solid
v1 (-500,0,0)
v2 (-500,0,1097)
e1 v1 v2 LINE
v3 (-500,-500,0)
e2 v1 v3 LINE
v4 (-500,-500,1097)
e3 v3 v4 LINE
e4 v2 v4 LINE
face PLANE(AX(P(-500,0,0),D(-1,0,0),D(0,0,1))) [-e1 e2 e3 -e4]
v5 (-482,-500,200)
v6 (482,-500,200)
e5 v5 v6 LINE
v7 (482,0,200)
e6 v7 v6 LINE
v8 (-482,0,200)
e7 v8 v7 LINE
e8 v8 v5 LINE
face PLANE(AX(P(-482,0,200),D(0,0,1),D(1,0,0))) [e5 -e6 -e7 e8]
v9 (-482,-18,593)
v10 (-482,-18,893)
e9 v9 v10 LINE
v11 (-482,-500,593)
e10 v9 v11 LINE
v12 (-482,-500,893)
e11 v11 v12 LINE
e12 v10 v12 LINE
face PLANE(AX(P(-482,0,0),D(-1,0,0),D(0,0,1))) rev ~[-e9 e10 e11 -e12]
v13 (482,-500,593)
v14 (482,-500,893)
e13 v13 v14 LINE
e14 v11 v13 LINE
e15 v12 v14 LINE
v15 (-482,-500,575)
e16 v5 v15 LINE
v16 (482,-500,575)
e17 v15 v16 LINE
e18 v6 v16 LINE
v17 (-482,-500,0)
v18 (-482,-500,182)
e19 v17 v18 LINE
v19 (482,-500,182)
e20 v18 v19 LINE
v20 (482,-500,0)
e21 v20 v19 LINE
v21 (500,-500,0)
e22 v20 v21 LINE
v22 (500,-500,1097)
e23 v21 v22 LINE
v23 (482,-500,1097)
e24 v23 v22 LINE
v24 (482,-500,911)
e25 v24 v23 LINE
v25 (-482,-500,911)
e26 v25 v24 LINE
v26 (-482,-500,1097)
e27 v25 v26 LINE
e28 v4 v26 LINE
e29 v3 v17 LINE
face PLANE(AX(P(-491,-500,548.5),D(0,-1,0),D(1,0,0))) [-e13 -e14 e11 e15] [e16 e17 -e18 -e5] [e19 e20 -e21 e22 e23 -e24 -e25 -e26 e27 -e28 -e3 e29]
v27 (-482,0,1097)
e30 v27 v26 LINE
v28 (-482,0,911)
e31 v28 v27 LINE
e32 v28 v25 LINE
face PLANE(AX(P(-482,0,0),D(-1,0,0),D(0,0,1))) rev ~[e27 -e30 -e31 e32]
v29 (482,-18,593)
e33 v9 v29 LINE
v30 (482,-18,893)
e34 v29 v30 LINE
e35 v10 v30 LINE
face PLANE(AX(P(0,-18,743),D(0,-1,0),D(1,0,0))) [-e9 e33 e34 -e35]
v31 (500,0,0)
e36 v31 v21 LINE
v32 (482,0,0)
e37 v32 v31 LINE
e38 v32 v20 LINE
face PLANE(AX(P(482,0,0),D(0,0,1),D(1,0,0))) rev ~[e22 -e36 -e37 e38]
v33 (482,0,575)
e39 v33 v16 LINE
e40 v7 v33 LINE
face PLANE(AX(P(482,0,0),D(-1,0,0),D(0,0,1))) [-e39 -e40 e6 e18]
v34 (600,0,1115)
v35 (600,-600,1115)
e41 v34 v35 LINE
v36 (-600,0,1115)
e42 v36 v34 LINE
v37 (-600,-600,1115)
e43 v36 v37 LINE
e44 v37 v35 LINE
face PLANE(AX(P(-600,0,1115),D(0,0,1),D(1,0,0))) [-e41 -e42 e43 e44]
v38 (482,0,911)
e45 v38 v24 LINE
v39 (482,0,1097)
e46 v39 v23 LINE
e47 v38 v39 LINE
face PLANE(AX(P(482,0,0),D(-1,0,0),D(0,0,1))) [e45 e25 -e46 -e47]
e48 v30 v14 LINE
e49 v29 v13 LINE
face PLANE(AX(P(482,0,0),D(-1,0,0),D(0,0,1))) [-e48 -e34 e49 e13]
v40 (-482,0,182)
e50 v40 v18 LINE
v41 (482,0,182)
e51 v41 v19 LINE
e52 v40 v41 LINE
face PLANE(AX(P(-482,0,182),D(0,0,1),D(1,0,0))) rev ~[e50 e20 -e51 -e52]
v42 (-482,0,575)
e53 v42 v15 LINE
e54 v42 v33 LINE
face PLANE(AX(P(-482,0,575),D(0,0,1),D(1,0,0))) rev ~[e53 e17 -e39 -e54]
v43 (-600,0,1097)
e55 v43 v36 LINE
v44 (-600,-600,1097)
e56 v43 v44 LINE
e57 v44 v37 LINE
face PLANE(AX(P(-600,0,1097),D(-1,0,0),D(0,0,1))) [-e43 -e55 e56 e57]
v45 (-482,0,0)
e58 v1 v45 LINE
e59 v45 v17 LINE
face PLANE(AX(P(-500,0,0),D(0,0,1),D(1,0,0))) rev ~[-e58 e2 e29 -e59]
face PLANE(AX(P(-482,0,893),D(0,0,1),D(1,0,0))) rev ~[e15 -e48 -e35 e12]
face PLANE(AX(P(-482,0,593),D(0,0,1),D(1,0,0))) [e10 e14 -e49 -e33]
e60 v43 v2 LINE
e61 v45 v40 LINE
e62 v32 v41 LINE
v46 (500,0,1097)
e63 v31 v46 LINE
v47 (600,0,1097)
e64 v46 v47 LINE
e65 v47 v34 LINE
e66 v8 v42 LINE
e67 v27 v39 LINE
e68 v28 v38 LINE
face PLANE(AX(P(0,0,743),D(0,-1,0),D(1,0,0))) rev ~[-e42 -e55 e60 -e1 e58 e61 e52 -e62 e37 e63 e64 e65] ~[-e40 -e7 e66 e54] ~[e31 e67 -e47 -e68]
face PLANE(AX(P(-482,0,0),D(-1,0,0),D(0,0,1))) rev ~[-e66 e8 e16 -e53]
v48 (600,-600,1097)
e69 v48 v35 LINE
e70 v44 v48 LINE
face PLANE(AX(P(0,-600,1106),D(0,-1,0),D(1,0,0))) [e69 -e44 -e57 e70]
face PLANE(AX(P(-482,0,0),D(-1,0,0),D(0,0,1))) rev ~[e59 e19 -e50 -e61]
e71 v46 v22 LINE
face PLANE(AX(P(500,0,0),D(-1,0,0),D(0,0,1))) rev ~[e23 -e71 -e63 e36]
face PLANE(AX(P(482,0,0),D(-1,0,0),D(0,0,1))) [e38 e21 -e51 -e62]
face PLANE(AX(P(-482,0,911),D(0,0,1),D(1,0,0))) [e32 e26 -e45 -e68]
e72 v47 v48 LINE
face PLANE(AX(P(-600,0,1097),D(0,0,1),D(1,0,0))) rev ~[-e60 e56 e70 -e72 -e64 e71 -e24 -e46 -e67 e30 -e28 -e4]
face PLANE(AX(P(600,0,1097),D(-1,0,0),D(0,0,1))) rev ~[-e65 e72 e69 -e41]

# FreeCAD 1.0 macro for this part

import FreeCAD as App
import Part
import Sketcher

V = App.Vector

doc = App.newDocument("Part")
body = doc.addObject("PartDesign::Body", "Body")

sketch1 = body.newObject("Sketcher::SketchObject", "Sketch")
sketch1.AttachmentSupport = (doc.getObject("XZ_Plane"), [""])
sketch1.MapMode = "FlatFace"
sketch1.addGeometry(Part.LineSegment(V(-600, 1115, 0), V(-600, 1097, 0)), False)
sketch1.addGeometry(Part.LineSegment(V(-600, 1097, 0), V(600, 1097, 0)), False)
sketch1.addGeometry(Part.LineSegment(V(600, 1097, 0), V(600, 1115, 0)), False)
sketch1.addGeometry(Part.LineSegment(V(600, 1115, 0), V(-600, 1115, 0)), False)
sketch1.addConstraint(Sketcher.Constraint("Coincident", 0, 2, 1, 1))
sketch1.addConstraint(Sketcher.Constraint("Coincident", 1, 2, 2, 1))
sketch1.addConstraint(Sketcher.Constraint("Coincident", 2, 2, 3, 1))
sketch1.addConstraint(Sketcher.Constraint("Coincident", 3, 2, 0, 1))
sketch1.addConstraint(Sketcher.Constraint("Vertical", 0))
sketch1.addConstraint(Sketcher.Constraint("Horizontal", 1))
sketch1.addConstraint(Sketcher.Constraint("Vertical", 2))
sketch1.addConstraint(Sketcher.Constraint("Horizontal", 3))
sketch1.addConstraint(Sketcher.Constraint("DistanceX", 1, 1, 1, 2, 1200.0))
sketch1.addConstraint(Sketcher.Constraint("DistanceY", 0, 2, 0, 1, 18.0))
sketch1.addConstraint(Sketcher.Constraint("DistanceX", 0, 2, -1, 1, 600.0))
sketch1.addConstraint(Sketcher.Constraint("DistanceY", -1, 1, 0, 2, 1097.0))
pad1 = body.newObject("PartDesign::Pad", "Pad")
pad1.Profile = sketch1
pad1.Length = 600

sketch2 = body.newObject("Sketcher::SketchObject", "Sketch001")
sketch2.AttachmentSupport = (doc.getObject("XZ_Plane"), [""])
sketch2.MapMode = "FlatFace"
sketch2.addGeometry(Part.LineSegment(V(-500, 1097, 0), V(-500, 0, 0)), False)
sketch2.addGeometry(Part.LineSegment(V(-500, 0, 0), V(-482, 0, 0)), False)
sketch2.addGeometry(Part.LineSegment(V(-482, 0, 0), V(-482, 1097, 0)), False)
sketch2.addGeometry(Part.LineSegment(V(-482, 1097, 0), V(-500, 1097, 0)), False)
sketch2.addGeometry(Part.LineSegment(V(482, 1097, 0), V(482, 0, 0)), False)
sketch2.addGeometry(Part.LineSegment(V(482, 0, 0), V(500, 0, 0)), False)
sketch2.addGeometry(Part.LineSegment(V(500, 0, 0), V(500, 1097, 0)), False)
sketch2.addGeometry(Part.LineSegment(V(500, 1097, 0), V(482, 1097, 0)), False)
sketch2.addConstraint(Sketcher.Constraint("Coincident", 0, 2, 1, 1))
sketch2.addConstraint(Sketcher.Constraint("Coincident", 1, 2, 2, 1))
sketch2.addConstraint(Sketcher.Constraint("Coincident", 2, 2, 3, 1))
sketch2.addConstraint(Sketcher.Constraint("Coincident", 3, 2, 0, 1))
sketch2.addConstraint(Sketcher.Constraint("Coincident", 4, 2, 5, 1))
sketch2.addConstraint(Sketcher.Constraint("Coincident", 5, 2, 6, 1))
sketch2.addConstraint(Sketcher.Constraint("Coincident", 6, 2, 7, 1))
sketch2.addConstraint(Sketcher.Constraint("Coincident", 7, 2, 4, 1))
sketch2.addConstraint(Sketcher.Constraint("Vertical", 0))
sketch2.addConstraint(Sketcher.Constraint("Horizontal", 1))
sketch2.addConstraint(Sketcher.Constraint("Vertical", 2))
sketch2.addConstraint(Sketcher.Constraint("Horizontal", 3))
sketch2.addConstraint(Sketcher.Constraint("Vertical", 4))
sketch2.addConstraint(Sketcher.Constraint("Horizontal", 5))
sketch2.addConstraint(Sketcher.Constraint("Vertical", 6))
sketch2.addConstraint(Sketcher.Constraint("Horizontal", 7))
sketch2.addConstraint(Sketcher.Constraint("Symmetric", 1, 2, 4, 2, -1, 1))
sketch2.addConstraint(Sketcher.Constraint("Symmetric", 0, 2, 5, 2, -2))
sketch2.addConstraint(Sketcher.Constraint("Horizontal", 3, 2, 6, 2))
sketch2.addConstraint(Sketcher.Constraint("DistanceX", 1, 1, 1, 2, 18.0))
sketch2.addConstraint(Sketcher.Constraint("DistanceY", 0, 2, 0, 1, 1097.0))
sketch2.addConstraint(Sketcher.Constraint("DistanceX", 0, 2, -1, 1, 500.0))
pad2 = body.newObject("PartDesign::Pad", "Pad001")
pad2.Profile = sketch2
pad2.Length = 500

sketch3 = body.newObject("Sketcher::SketchObject", "Sketch002")
sketch3.AttachmentSupport = (doc.getObject("XZ_Plane"), [""])
sketch3.MapMode = "FlatFace"
sketch3.addGeometry(Part.LineSegment(V(-482, 200, 0), V(-482, 182, 0)), False)
sketch3.addGeometry(Part.LineSegment(V(-482, 182, 0), V(482, 182, 0)), False)
sketch3.addGeometry(Part.LineSegment(V(482, 182, 0), V(482, 200, 0)), False)
sketch3.addGeometry(Part.LineSegment(V(482, 200, 0), V(-482, 200, 0)), False)
sketch3.addGeometry(Part.LineSegment(V(-482, 593, 0), V(-482, 575, 0)), False)
sketch3.addGeometry(Part.LineSegment(V(-482, 575, 0), V(482, 575, 0)), False)
sketch3.addGeometry(Part.LineSegment(V(482, 575, 0), V(482, 593, 0)), False)
sketch3.addGeometry(Part.LineSegment(V(482, 593, 0), V(-482, 593, 0)), False)
sketch3.addGeometry(Part.LineSegment(V(-482, 911, 0), V(-482, 893, 0)), False)
sketch3.addGeometry(Part.LineSegment(V(-482, 893, 0), V(482, 893, 0)), False)
sketch3.addGeometry(Part.LineSegment(V(482, 893, 0), V(482, 911, 0)), False)
sketch3.addGeometry(Part.LineSegment(V(482, 911, 0), V(-482, 911, 0)), False)
sketch3.addConstraint(Sketcher.Constraint("Coincident", 0, 2, 1, 1))
sketch3.addConstraint(Sketcher.Constraint("Coincident", 1, 2, 2, 1))
sketch3.addConstraint(Sketcher.Constraint("Coincident", 2, 2, 3, 1))
sketch3.addConstraint(Sketcher.Constraint("Coincident", 3, 2, 0, 1))
sketch3.addConstraint(Sketcher.Constraint("Coincident", 4, 2, 5, 1))
sketch3.addConstraint(Sketcher.Constraint("Coincident", 5, 2, 6, 1))
sketch3.addConstraint(Sketcher.Constraint("Coincident", 6, 2, 7, 1))
sketch3.addConstraint(Sketcher.Constraint("Coincident", 7, 2, 4, 1))
sketch3.addConstraint(Sketcher.Constraint("Coincident", 8, 2, 9, 1))
sketch3.addConstraint(Sketcher.Constraint("Coincident", 9, 2, 10, 1))
sketch3.addConstraint(Sketcher.Constraint("Coincident", 10, 2, 11, 1))
sketch3.addConstraint(Sketcher.Constraint("Coincident", 11, 2, 8, 1))
sketch3.addConstraint(Sketcher.Constraint("Vertical", 0))
sketch3.addConstraint(Sketcher.Constraint("Horizontal", 1))
sketch3.addConstraint(Sketcher.Constraint("Vertical", 2))
sketch3.addConstraint(Sketcher.Constraint("Horizontal", 3))
sketch3.addConstraint(Sketcher.Constraint("Vertical", 4))
sketch3.addConstraint(Sketcher.Constraint("Horizontal", 5))
sketch3.addConstraint(Sketcher.Constraint("Vertical", 6))
sketch3.addConstraint(Sketcher.Constraint("Horizontal", 7))
sketch3.addConstraint(Sketcher.Constraint("Vertical", 8))
sketch3.addConstraint(Sketcher.Constraint("Horizontal", 9))
sketch3.addConstraint(Sketcher.Constraint("Vertical", 10))
sketch3.addConstraint(Sketcher.Constraint("Horizontal", 11))
sketch3.addConstraint(Sketcher.Constraint("Vertical", 3, 2, 4, 2))
sketch3.addConstraint(Sketcher.Constraint("Vertical", 2, 2, 5, 2))
sketch3.addConstraint(Sketcher.Constraint("Vertical", 7, 2, 8, 2))
sketch3.addConstraint(Sketcher.Constraint("Vertical", 6, 2, 9, 2))
sketch3.addConstraint(Sketcher.Constraint("Equal", 2, 4))
sketch3.addConstraint(Sketcher.Constraint("Equal", 6, 8))
sketch3.addConstraint(Sketcher.Constraint("DistanceX", 1, 1, 1, 2, 964.0))
sketch3.addConstraint(Sketcher.Constraint("DistanceY", 0, 2, 0, 1, 18.0))
sketch3.addConstraint(Sketcher.Constraint("DistanceX", 0, 2, -1, 1, 482.0))
sketch3.addConstraint(Sketcher.Constraint("DistanceY", -1, 1, 0, 2, 182.0))
sketch3.addConstraint(Sketcher.Constraint("DistanceY", -1, 1, 4, 2, 575.0))
sketch3.addConstraint(Sketcher.Constraint("DistanceY", -1, 1, 8, 2, 893.0))
pad3 = body.newObject("PartDesign::Pad", "Pad002")
pad3.Profile = sketch3
pad3.Length = 500

sketch4 = body.newObject("Sketcher::SketchObject", "Sketch003")
sketch4.AttachmentSupport = (doc.getObject("XZ_Plane"), [""])
sketch4.MapMode = "FlatFace"
sketch4.addGeometry(Part.LineSegment(V(-482, 893, 0), V(-482, 593, 0)), False)
sketch4.addGeometry(Part.LineSegment(V(-482, 593, 0), V(482, 593, 0)), False)
sketch4.addGeometry(Part.LineSegment(V(482, 593, 0), V(482, 893, 0)), False)
sketch4.addGeometry(Part.LineSegment(V(482, 893, 0), V(-482, 893, 0)), False)
sketch4.addConstraint(Sketcher.Constraint("Coincident", 0, 2, 1, 1))
sketch4.addConstraint(Sketcher.Constraint("Coincident", 1, 2, 2, 1))
sketch4.addConstraint(Sketcher.Constraint("Coincident", 2, 2, 3, 1))
sketch4.addConstraint(Sketcher.Constraint("Coincident", 3, 2, 0, 1))
sketch4.addConstraint(Sketcher.Constraint("Vertical", 0))
sketch4.addConstraint(Sketcher.Constraint("Horizontal", 1))
sketch4.addConstraint(Sketcher.Constraint("Vertical", 2))
sketch4.addConstraint(Sketcher.Constraint("Horizontal", 3))
sketch4.addConstraint(Sketcher.Constraint("DistanceX", 1, 1, 1, 2, 964.0))
sketch4.addConstraint(Sketcher.Constraint("DistanceY", 0, 2, 0, 1, 300.0))
sketch4.addConstraint(Sketcher.Constraint("DistanceX", 0, 2, -1, 1, 482.0))
sketch4.addConstraint(Sketcher.Constraint("DistanceY", -1, 1, 0, 2, 593.0))
pad4 = body.newObject("PartDesign::Pad", "Pad003")
pad4.Profile = sketch4
pad4.Length = 18

doc.recompute()
